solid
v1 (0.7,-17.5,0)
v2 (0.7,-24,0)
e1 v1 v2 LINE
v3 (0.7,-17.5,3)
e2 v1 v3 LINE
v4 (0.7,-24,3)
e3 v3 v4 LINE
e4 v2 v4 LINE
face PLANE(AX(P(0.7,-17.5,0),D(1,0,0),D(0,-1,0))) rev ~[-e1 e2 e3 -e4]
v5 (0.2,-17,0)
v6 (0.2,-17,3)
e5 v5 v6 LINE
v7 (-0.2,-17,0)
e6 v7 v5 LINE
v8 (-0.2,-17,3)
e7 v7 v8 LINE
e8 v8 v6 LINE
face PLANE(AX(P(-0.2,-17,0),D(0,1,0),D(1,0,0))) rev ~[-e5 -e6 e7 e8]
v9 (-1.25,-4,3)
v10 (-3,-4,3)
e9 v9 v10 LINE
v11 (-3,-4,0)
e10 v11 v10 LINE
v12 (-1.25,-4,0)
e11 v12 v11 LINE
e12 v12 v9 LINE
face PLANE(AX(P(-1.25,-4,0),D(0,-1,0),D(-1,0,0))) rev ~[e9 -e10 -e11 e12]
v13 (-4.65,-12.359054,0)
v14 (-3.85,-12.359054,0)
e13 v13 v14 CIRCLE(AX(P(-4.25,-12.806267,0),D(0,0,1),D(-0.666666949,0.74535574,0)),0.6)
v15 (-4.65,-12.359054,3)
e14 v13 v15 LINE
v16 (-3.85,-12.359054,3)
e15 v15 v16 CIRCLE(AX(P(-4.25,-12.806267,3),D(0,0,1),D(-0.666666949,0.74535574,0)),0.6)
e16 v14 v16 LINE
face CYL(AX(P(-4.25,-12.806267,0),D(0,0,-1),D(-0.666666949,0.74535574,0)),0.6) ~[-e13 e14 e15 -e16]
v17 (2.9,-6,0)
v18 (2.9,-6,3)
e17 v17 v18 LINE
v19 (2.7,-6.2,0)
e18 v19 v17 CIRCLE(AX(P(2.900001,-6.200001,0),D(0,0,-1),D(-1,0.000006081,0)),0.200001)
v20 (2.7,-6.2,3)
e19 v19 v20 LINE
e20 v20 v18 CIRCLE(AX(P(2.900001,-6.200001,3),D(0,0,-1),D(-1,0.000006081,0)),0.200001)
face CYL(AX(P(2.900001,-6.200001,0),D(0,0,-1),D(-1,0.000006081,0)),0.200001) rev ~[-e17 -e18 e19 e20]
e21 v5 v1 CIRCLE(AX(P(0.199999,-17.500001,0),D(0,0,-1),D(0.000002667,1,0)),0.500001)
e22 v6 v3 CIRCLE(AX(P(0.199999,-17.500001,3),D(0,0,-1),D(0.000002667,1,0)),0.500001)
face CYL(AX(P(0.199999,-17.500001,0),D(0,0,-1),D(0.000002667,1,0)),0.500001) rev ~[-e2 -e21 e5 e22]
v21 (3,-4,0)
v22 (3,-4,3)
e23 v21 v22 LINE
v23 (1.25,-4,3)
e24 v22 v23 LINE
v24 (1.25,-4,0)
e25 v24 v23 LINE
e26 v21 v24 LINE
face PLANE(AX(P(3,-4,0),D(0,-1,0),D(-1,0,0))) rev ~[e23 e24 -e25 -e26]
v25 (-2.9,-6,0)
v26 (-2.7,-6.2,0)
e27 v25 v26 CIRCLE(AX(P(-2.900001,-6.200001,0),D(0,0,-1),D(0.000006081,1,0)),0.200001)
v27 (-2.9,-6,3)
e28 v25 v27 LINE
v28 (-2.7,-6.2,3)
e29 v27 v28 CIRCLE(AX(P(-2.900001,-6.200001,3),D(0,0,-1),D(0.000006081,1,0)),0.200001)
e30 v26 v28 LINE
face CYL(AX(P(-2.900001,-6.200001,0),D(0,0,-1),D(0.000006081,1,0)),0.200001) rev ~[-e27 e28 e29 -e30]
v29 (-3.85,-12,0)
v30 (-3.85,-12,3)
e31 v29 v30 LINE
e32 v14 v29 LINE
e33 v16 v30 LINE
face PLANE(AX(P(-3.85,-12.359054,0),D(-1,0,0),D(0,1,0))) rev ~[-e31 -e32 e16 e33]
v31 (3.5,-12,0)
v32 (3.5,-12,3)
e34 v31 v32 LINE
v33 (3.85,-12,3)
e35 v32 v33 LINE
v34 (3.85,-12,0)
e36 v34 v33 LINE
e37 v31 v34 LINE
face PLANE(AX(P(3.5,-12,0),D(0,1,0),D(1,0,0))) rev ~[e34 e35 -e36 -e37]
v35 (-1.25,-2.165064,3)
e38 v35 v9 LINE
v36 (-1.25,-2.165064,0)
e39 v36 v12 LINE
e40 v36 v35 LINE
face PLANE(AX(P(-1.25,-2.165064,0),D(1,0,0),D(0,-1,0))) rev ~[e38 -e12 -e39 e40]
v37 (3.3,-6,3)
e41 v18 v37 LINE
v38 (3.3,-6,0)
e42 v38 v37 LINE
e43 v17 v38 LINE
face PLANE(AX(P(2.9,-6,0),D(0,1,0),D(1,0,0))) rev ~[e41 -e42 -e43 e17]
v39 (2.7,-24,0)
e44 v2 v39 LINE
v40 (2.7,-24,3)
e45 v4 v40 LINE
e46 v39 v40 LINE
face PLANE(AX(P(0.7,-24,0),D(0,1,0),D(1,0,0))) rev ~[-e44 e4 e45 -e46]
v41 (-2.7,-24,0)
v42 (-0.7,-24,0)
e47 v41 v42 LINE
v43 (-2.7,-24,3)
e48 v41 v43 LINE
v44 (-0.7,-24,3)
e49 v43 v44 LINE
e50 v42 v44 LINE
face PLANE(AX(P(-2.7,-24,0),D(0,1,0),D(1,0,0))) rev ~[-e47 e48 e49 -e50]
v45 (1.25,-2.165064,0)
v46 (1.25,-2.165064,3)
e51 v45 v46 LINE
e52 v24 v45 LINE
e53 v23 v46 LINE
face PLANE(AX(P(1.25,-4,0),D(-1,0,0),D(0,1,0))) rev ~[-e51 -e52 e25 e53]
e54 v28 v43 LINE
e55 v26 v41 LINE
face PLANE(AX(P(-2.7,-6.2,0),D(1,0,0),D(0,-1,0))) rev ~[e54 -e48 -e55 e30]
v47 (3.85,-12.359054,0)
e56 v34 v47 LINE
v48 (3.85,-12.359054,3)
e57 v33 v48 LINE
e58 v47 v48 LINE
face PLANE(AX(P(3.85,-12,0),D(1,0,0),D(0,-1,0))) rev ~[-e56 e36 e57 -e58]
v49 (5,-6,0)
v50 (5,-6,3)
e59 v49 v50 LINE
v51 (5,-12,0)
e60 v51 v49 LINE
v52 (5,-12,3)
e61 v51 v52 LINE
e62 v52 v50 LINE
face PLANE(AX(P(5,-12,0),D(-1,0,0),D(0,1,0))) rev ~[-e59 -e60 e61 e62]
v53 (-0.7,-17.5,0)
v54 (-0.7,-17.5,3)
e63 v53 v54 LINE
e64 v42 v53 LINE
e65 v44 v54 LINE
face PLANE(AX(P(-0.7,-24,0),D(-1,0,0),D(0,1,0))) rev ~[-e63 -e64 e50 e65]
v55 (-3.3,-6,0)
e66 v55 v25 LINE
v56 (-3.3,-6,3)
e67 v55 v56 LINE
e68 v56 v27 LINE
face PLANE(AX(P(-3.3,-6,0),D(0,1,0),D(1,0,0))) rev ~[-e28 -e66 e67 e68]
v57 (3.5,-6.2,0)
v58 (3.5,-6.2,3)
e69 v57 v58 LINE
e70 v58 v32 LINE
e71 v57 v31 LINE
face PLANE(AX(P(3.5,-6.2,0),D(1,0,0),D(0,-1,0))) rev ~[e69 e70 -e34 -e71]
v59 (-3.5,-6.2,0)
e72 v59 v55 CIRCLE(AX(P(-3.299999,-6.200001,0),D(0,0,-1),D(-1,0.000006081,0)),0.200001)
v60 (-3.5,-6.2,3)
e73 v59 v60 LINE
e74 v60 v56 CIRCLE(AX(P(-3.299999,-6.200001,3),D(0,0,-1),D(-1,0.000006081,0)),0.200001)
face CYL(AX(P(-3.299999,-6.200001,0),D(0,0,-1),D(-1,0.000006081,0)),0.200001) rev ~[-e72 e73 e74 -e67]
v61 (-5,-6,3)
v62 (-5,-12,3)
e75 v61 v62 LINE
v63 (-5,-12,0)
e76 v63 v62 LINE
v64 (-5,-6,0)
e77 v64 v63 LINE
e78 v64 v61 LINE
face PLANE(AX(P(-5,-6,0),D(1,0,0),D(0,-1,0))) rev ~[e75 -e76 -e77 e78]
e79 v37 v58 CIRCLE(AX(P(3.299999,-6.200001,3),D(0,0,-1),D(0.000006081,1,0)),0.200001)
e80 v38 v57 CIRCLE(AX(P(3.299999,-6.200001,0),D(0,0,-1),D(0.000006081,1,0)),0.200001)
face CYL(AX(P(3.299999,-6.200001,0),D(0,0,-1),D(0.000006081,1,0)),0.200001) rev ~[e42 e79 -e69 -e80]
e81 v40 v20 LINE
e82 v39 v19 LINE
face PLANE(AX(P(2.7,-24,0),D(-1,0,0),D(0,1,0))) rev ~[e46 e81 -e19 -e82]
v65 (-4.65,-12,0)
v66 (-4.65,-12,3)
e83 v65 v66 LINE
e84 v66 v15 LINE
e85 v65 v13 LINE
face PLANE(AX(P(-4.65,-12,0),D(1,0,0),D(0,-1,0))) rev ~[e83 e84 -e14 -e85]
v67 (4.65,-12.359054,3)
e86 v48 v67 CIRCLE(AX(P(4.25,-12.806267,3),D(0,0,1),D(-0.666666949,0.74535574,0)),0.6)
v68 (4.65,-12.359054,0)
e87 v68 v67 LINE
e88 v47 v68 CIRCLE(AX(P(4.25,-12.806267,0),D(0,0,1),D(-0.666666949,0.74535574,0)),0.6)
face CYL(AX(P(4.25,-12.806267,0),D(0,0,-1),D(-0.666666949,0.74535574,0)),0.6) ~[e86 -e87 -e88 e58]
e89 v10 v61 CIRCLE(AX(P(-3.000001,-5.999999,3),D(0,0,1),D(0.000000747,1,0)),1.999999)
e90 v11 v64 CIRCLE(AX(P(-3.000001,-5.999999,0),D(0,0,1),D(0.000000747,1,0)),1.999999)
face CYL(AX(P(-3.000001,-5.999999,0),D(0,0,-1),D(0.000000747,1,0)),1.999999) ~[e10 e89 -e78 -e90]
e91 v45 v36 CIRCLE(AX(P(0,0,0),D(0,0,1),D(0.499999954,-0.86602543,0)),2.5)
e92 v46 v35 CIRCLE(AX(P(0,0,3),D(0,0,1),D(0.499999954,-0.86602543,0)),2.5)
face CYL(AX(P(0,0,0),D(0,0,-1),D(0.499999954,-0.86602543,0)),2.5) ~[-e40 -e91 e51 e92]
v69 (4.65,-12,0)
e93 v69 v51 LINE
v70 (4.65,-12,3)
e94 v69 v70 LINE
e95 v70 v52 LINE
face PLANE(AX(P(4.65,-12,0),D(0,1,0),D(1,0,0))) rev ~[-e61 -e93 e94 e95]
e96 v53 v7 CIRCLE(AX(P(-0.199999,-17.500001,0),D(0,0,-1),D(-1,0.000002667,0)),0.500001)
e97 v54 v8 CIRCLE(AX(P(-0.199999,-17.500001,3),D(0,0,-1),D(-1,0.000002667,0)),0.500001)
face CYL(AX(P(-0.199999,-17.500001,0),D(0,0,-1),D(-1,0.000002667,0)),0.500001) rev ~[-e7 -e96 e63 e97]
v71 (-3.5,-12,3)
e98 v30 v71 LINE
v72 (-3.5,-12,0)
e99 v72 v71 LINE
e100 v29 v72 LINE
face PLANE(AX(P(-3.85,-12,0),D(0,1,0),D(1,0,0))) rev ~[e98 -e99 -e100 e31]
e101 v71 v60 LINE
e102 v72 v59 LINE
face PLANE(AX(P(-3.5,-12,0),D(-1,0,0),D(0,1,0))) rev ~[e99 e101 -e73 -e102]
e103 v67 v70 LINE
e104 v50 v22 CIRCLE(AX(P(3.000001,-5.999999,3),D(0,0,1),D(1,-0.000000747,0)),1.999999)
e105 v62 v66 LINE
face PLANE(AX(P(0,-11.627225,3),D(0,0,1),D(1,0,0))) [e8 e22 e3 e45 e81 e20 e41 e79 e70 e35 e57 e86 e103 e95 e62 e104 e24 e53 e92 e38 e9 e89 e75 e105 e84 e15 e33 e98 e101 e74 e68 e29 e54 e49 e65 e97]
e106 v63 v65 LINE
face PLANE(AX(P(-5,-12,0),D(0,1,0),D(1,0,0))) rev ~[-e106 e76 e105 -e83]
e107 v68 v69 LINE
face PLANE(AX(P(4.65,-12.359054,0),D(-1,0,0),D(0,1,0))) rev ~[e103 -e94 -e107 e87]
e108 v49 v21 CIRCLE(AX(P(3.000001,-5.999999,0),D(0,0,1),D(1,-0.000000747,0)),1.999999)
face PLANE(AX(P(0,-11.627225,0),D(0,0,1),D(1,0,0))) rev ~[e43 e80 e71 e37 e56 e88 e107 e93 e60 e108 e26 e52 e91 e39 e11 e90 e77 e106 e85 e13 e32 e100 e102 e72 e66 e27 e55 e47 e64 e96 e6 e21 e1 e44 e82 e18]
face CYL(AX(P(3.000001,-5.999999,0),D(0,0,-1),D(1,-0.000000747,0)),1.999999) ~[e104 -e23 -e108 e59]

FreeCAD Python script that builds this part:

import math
import FreeCAD as App
import Part
import Sketcher
Q = App.Units.Quantity

doc = App.newDocument("Part")
body = doc.addObject("PartDesign::Body", "Body")

sketch1 = body.newObject("Sketcher::SketchObject", "Sketch")
sketch1.AttachmentSupport = (doc.getObject("XY_Plane"), [""])
sketch1.MapMode = "FlatFace"
sketch1.addGeometry(Part.LineSegment(App.Vector(1.25, -4, 0), App.Vector(1.25, -2.165064, 0)), False)
sketch1.addGeometry(Part.ArcOfCircle(Part.Circle(App.Vector(0, 0, 0), App.Vector(0, 0, 1), 2.5), math.radians(-60.000003), math.radians(240.000003)), False)
sketch1.addGeometry(Part.LineSegment(App.Vector(-1.25, -2.165064, 0), App.Vector(-1.25, -4, 0)), False)
sketch1.addGeometry(Part.LineSegment(App.Vector(-1.25, -4, 0), App.Vector(-3, -4, 0)), False)
sketch1.addGeometry(Part.ArcOfCircle(Part.Circle(App.Vector(-3.000001, -5.999999, 0), App.Vector(0, 0, 1), 1.999999), math.radians(89.999957), math.radians(180.000043)), False)
sketch1.addGeometry(Part.LineSegment(App.Vector(-5, -6, 0), App.Vector(-5, -12, 0)), False)
sketch1.addGeometry(Part.LineSegment(App.Vector(-5, -12, 0), App.Vector(-4.65, -12, 0)), False)
sketch1.addGeometry(Part.LineSegment(App.Vector(-4.65, -12, 0), App.Vector(-4.65, -12.359054, 0)), False)
sketch1.addGeometry(Part.ArcOfCircle(Part.Circle(App.Vector(-4.25, -12.806267, 0), App.Vector(0, 0, 1), 0.6), math.radians(131.810337), math.radians(408.189663)), False)
sketch1.addGeometry(Part.LineSegment(App.Vector(-3.85, -12.359054, 0), App.Vector(-3.85, -12, 0)), False)
sketch1.addGeometry(Part.LineSegment(App.Vector(-3.85, -12, 0), App.Vector(-3.5, -12, 0)), False)
sketch1.addGeometry(Part.LineSegment(App.Vector(-3.5, -12, 0), App.Vector(-3.5, -6.2, 0)), False)
sketch1.addGeometry(Part.ArcOfCircle(Part.Circle(App.Vector(-3.299999, -6.200001, 0), App.Vector(0, 0, 1), 0.200001), math.radians(90.000348), math.radians(179.999652)), False)
sketch1.addGeometry(Part.LineSegment(App.Vector(-3.3, -6, 0), App.Vector(-2.9, -6, 0)), False)
sketch1.addGeometry(Part.ArcOfCircle(Part.Circle(App.Vector(-2.900001, -6.200001, 0), App.Vector(0, 0, 1), 0.200001), math.radians(0.000348), math.radians(89.999652)), False)
sketch1.addGeometry(Part.LineSegment(App.Vector(-2.7, -6.2, 0), App.Vector(-2.7, -24, 0)), False)
sketch1.addGeometry(Part.LineSegment(App.Vector(-2.7, -24, 0), App.Vector(-0.7, -24, 0)), False)
sketch1.addGeometry(Part.LineSegment(App.Vector(-0.7, -24, 0), App.Vector(-0.7, -17.5, 0)), False)
sketch1.addGeometry(Part.ArcOfCircle(Part.Circle(App.Vector(-0.199999, -17.500001, 0), App.Vector(0, 0, 1), 0.500001), math.radians(90.000153), math.radians(179.999847)), False)
sketch1.addGeometry(Part.LineSegment(App.Vector(-0.2, -17, 0), App.Vector(0.2, -17, 0)), False)
sketch1.addGeometry(Part.ArcOfCircle(Part.Circle(App.Vector(0.199999, -17.500001, 0), App.Vector(0, 0, 1), 0.500001), math.radians(0.000153), math.radians(89.999847)), False)
sketch1.addGeometry(Part.LineSegment(App.Vector(0.7, -17.5, 0), App.Vector(0.7, -24, 0)), False)
sketch1.addGeometry(Part.LineSegment(App.Vector(0.7, -24, 0), App.Vector(2.7, -24, 0)), False)
sketch1.addGeometry(Part.LineSegment(App.Vector(2.7, -24, 0), App.Vector(2.7, -6.2, 0)), False)
sketch1.addGeometry(Part.ArcOfCircle(Part.Circle(App.Vector(2.900001, -6.200001, 0), App.Vector(0, 0, 1), 0.200001), math.radians(90.000348), math.radians(179.999652)), False)
sketch1.addGeometry(Part.LineSegment(App.Vector(2.9, -6, 0), App.Vector(3.3, -6, 0)), False)
sketch1.addGeometry(Part.ArcOfCircle(Part.Circle(App.Vector(3.299999, -6.200001, 0), App.Vector(0, 0, 1), 0.200001), math.radians(0.000348), math.radians(89.999652)), False)
sketch1.addGeometry(Part.LineSegment(App.Vector(3.5, -6.2, 0), App.Vector(3.5, -12, 0)), False)
sketch1.addGeometry(Part.LineSegment(App.Vector(3.5, -12, 0), App.Vector(3.85, -12, 0)), False)
sketch1.addGeometry(Part.LineSegment(App.Vector(3.85, -12, 0), App.Vector(3.85, -12.359054, 0)), False)
sketch1.addGeometry(Part.ArcOfCircle(Part.Circle(App.Vector(4.25, -12.806267, 0), App.Vector(0, 0, 1), 0.6), math.radians(131.810337), math.radians(408.189663)), False)
sketch1.addGeometry(Part.LineSegment(App.Vector(4.65, -12.359054, 0), App.Vector(4.65, -12, 0)), False)
sketch1.addGeometry(Part.LineSegment(App.Vector(4.65, -12, 0), App.Vector(5, -12, 0)), False)
sketch1.addGeometry(Part.LineSegment(App.Vector(5, -12, 0), App.Vector(5, -6, 0)), False)
sketch1.addGeometry(Part.ArcOfCircle(Part.Circle(App.Vector(3.000001, -5.999999, 0), App.Vector(0, 0, 1), 1.999999), math.radians(-0.000043), math.radians(90.000043)), False)
sketch1.addGeometry(Part.LineSegment(App.Vector(3, -4, 0), App.Vector(1.25, -4, 0)), False)
sketch1.addConstraint(Sketcher.Constraint("Coincident", 0, 2, 1, 1))
sketch1.addConstraint(Sketcher.Constraint("Coincident", 1, 2, 2, 1))
sketch1.addConstraint(Sketcher.Constraint("Coincident", 2, 2, 3, 1))
sketch1.addConstraint(Sketcher.Constraint("Tangent", 3, 2, 4, 1))
sketch1.addConstraint(Sketcher.Constraint("Tangent", 4, 2, 5, 1))
sketch1.addConstraint(Sketcher.Constraint("Coincident", 5, 2, 6, 1))
sketch1.addConstraint(Sketcher.Constraint("Coincident", 6, 2, 7, 1))
sketch1.addConstraint(Sketcher.Constraint("Coincident", 7, 2, 8, 1))
sketch1.addConstraint(Sketcher.Constraint("Coincident", 8, 2, 9, 1))
sketch1.addConstraint(Sketcher.Constraint("Coincident", 9, 2, 10, 1))
sketch1.addConstraint(Sketcher.Constraint("Coincident", 10, 2, 11, 1))
sketch1.addConstraint(Sketcher.Constraint("Coincident", 11, 2, 12, 2))
sketch1.addConstraint(Sketcher.Constraint("Coincident", 12, 1, 13, 1))
sketch1.addConstraint(Sketcher.Constraint("Coincident", 13, 2, 14, 2))
sketch1.addConstraint(Sketcher.Constraint("Coincident", 14, 1, 15, 1))
sketch1.addConstraint(Sketcher.Constraint("Coincident", 15, 2, 16, 1))
sketch1.addConstraint(Sketcher.Constraint("Coincident", 16, 2, 17, 1))
sketch1.addConstraint(Sketcher.Constraint("Coincident", 17, 2, 18, 2))
sketch1.addConstraint(Sketcher.Constraint("Coincident", 18, 1, 19, 1))
sketch1.addConstraint(Sketcher.Constraint("Coincident", 19, 2, 20, 2))
sketch1.addConstraint(Sketcher.Constraint("Coincident", 20, 1, 21, 1))
sketch1.addConstraint(Sketcher.Constraint("Coincident", 21, 2, 22, 1))
sketch1.addConstraint(Sketcher.Constraint("Coincident", 22, 2, 23, 1))
sketch1.addConstraint(Sketcher.Constraint("Coincident", 23, 2, 24, 2))
sketch1.addConstraint(Sketcher.Constraint("Coincident", 24, 1, 25, 1))
sketch1.addConstraint(Sketcher.Constraint("Coincident", 25, 2, 26, 2))
sketch1.addConstraint(Sketcher.Constraint("Coincident", 26, 1, 27, 1))
sketch1.addConstraint(Sketcher.Constraint("Coincident", 27, 2, 28, 1))
sketch1.addConstraint(Sketcher.Constraint("Coincident", 28, 2, 29, 1))
sketch1.addConstraint(Sketcher.Constraint("Coincident", 29, 2, 30, 1))
sketch1.addConstraint(Sketcher.Constraint("Coincident", 30, 2, 31, 1))
sketch1.addConstraint(Sketcher.Constraint("Coincident", 31, 2, 32, 1))
sketch1.addConstraint(Sketcher.Constraint("Coincident", 32, 2, 33, 1))
sketch1.addConstraint(Sketcher.Constraint("Tangent", 33, 2, 34, 1))
sketch1.addConstraint(Sketcher.Constraint("Tangent", 34, 2, 35, 1))
sketch1.addConstraint(Sketcher.Constraint("Coincident", 35, 2, 0, 1))
sketch1.addConstraint(Sketcher.Constraint("Vertical", 0))
sketch1.addConstraint(Sketcher.Constraint("Vertical", 2))
sketch1.addConstraint(Sketcher.Constraint("Horizontal", 3))
sketch1.addConstraint(Sketcher.Constraint("Vertical", 5))
sketch1.addConstraint(Sketcher.Constraint("Horizontal", 6))
sketch1.addConstraint(Sketcher.Constraint("Vertical", 7))
sketch1.addConstraint(Sketcher.Constraint("Vertical", 9))
sketch1.addConstraint(Sketcher.Constraint("Horizontal", 10))
sketch1.addConstraint(Sketcher.Constraint("Vertical", 11))
sketch1.addConstraint(Sketcher.Constraint("Horizontal", 13))
sketch1.addConstraint(Sketcher.Constraint("Vertical", 15))
sketch1.addConstraint(Sketcher.Constraint("Horizontal", 16))
sketch1.addConstraint(Sketcher.Constraint("Vertical", 17))
sketch1.addConstraint(Sketcher.Constraint("Horizontal", 19))
sketch1.addConstraint(Sketcher.Constraint("Vertical", 21))
sketch1.addConstraint(Sketcher.Constraint("Horizontal", 22))
sketch1.addConstraint(Sketcher.Constraint("Vertical", 23))
sketch1.addConstraint(Sketcher.Constraint("Horizontal", 25))
sketch1.addConstraint(Sketcher.Constraint("Vertical", 27))
sketch1.addConstraint(Sketcher.Constraint("Horizontal", 28))
sketch1.addConstraint(Sketcher.Constraint("Vertical", 29))
sketch1.addConstraint(Sketcher.Constraint("Vertical", 31))
sketch1.addConstraint(Sketcher.Constraint("Horizontal", 32))
sketch1.addConstraint(Sketcher.Constraint("Vertical", 33))
sketch1.addConstraint(Sketcher.Constraint("Horizontal", 35))
sketch1.addConstraint(Sketcher.Constraint("Coincident", 1, 3, -1, 1))
sketch1.addConstraint(Sketcher.Constraint("Equal", 12, 14))
sketch1.addConstraint(Sketcher.Constraint("Equal", 18, 20))
sketch1.addConstraint(Sketcher.Constraint("Equal", 14, 24))
sketch1.addConstraint(Sketcher.Constraint("Equal", 24, 26))
sketch1.addConstraint(Sketcher.Constraint("Equal", 8, 30))
sketch1.addConstraint(Sketcher.Constraint("Equal", 4, 34))
sketch1.addConstraint(Sketcher.Constraint("Symmetric", 14, 3, 24, 3, -2))
sketch1.addConstraint(Sketcher.Constraint("Symmetric", 8, 3, 30, 3, -2))
sketch1.addConstraint(Sketcher.Constraint("Symmetric", 4, 3, 34, 3, -2))
sketch1.addConstraint(Sketcher.Constraint("Symmetric", 17, 2, 20, 1, -2))
sketch1.addConstraint(Sketcher.Constraint("Symmetric", 11, 2, 26, 1, -2))
sketch1.addConstraint(Sketcher.Constraint("Symmetric", 9, 2, 28, 2, -2))
sketch1.addConstraint(Sketcher.Constraint("Symmetric", 6, 2, 31, 2, -2))
sketch1.addConstraint(Sketcher.Constraint("Horizontal", 0, 2, 1, 2))
sketch1.addConstraint(Sketcher.Constraint("Horizontal", 7, 2, 8, 2))
sketch1.addConstraint(Sketcher.Constraint("Horizontal", 6, 2, 9, 2))
sketch1.addConstraint(Sketcher.Constraint("Horizontal", 26, 3, 11, 2))
sketch1.addConstraint(Sketcher.Constraint("Horizontal", 4, 2, 12, 1))
sketch1.addConstraint(Sketcher.Constraint("Horizontal", 11, 2, 14, 1))
sketch1.addConstraint(Sketcher.Constraint("Horizontal", 20, 3, 17, 2))
sketch1.addConstraint(Sketcher.Constraint("Horizontal", 16, 2, 21, 2))
sketch1.addConstraint(Sketcher.Constraint("Horizontal", 14, 1, 23, 2))
sketch1.addConstraint(Sketcher.Constraint("Vertical", 14, 3, 13, 2))
sketch1.addConstraint(Sketcher.Constraint("Vertical", 20, 3, 19, 2))
sketch1.addConstraint(Sketcher.Constraint("Vertical", 26, 3, 25, 2))
sketch1.addConstraint(Sketcher.Constraint("Equal", 6, 10))
sketch1.addConstraint(Sketcher.Constraint("Equal", 13, 19))
sketch1.addConstraint(Sketcher.Constraint("Equal", 19, 25))
sketch1.addConstraint(Sketcher.Constraint("Radius", 4, Q("1.999999 mm")))
sketch1.addConstraint(Sketcher.Constraint("Radius", 1, Q("2.5 mm")))
sketch1.addConstraint(Sketcher.Constraint("Radius", 8, Q("0.6 mm")))
sketch1.addConstraint(Sketcher.Constraint("Radius", 12, Q("0.200001 mm")))
sketch1.addConstraint(Sketcher.Constraint("Radius", 18, Q("0.500001 mm")))
sketch1.addConstraint(Sketcher.Constraint("DistanceX", 16, 1, 16, 2, Q("2 mm")))
sketch1.addConstraint(Sketcher.Constraint("DistanceY", 5, 2, 5, 1, Q("6 mm")))
sketch1.addConstraint(Sketcher.Constraint("DistanceX", 13, 1, 13, 2, Q("0.4 mm")))
sketch1.addConstraint(Sketcher.Constraint("DistanceY", 15, 2, 15, 1, Q("17.8 mm")))
sketch1.addConstraint(Sketcher.Constraint("DistanceY", 17, 1, 17, 2, Q("6.5 mm")))
sketch1.addConstraint(Sketcher.Constraint("DistanceX", 4, 3, -1, 1, Q("3.000001 mm")))
sketch1.addConstraint(Sketcher.Constraint("DistanceY", 4, 3, -1, 1, Q("5.999999 mm")))
sketch1.addConstraint(Sketcher.Constraint("DistanceX", 3, 2, 3, 1, Q("1.75 mm")))
sketch1.addConstraint(Sketcher.Constraint("DistanceX", 6, 1, 6, 2, Q("0.35 mm")))
sketch1.addConstraint(Sketcher.Constraint("DistanceX", 12, 3, -1, 1, Q("3.299999 mm")))
sketch1.addConstraint(Sketcher.Constraint("DistanceX", 14, 3, -1, 1, Q("2.900001 mm")))
sketch1.addConstraint(Sketcher.Constraint("DistanceY", 7, 2, 7, 1, Q("0.359054 mm")))
pad1 = body.newObject("PartDesign::Pad", "Pad")
pad1.Profile = sketch1
pad1.Length = 3

doc.recompute()
